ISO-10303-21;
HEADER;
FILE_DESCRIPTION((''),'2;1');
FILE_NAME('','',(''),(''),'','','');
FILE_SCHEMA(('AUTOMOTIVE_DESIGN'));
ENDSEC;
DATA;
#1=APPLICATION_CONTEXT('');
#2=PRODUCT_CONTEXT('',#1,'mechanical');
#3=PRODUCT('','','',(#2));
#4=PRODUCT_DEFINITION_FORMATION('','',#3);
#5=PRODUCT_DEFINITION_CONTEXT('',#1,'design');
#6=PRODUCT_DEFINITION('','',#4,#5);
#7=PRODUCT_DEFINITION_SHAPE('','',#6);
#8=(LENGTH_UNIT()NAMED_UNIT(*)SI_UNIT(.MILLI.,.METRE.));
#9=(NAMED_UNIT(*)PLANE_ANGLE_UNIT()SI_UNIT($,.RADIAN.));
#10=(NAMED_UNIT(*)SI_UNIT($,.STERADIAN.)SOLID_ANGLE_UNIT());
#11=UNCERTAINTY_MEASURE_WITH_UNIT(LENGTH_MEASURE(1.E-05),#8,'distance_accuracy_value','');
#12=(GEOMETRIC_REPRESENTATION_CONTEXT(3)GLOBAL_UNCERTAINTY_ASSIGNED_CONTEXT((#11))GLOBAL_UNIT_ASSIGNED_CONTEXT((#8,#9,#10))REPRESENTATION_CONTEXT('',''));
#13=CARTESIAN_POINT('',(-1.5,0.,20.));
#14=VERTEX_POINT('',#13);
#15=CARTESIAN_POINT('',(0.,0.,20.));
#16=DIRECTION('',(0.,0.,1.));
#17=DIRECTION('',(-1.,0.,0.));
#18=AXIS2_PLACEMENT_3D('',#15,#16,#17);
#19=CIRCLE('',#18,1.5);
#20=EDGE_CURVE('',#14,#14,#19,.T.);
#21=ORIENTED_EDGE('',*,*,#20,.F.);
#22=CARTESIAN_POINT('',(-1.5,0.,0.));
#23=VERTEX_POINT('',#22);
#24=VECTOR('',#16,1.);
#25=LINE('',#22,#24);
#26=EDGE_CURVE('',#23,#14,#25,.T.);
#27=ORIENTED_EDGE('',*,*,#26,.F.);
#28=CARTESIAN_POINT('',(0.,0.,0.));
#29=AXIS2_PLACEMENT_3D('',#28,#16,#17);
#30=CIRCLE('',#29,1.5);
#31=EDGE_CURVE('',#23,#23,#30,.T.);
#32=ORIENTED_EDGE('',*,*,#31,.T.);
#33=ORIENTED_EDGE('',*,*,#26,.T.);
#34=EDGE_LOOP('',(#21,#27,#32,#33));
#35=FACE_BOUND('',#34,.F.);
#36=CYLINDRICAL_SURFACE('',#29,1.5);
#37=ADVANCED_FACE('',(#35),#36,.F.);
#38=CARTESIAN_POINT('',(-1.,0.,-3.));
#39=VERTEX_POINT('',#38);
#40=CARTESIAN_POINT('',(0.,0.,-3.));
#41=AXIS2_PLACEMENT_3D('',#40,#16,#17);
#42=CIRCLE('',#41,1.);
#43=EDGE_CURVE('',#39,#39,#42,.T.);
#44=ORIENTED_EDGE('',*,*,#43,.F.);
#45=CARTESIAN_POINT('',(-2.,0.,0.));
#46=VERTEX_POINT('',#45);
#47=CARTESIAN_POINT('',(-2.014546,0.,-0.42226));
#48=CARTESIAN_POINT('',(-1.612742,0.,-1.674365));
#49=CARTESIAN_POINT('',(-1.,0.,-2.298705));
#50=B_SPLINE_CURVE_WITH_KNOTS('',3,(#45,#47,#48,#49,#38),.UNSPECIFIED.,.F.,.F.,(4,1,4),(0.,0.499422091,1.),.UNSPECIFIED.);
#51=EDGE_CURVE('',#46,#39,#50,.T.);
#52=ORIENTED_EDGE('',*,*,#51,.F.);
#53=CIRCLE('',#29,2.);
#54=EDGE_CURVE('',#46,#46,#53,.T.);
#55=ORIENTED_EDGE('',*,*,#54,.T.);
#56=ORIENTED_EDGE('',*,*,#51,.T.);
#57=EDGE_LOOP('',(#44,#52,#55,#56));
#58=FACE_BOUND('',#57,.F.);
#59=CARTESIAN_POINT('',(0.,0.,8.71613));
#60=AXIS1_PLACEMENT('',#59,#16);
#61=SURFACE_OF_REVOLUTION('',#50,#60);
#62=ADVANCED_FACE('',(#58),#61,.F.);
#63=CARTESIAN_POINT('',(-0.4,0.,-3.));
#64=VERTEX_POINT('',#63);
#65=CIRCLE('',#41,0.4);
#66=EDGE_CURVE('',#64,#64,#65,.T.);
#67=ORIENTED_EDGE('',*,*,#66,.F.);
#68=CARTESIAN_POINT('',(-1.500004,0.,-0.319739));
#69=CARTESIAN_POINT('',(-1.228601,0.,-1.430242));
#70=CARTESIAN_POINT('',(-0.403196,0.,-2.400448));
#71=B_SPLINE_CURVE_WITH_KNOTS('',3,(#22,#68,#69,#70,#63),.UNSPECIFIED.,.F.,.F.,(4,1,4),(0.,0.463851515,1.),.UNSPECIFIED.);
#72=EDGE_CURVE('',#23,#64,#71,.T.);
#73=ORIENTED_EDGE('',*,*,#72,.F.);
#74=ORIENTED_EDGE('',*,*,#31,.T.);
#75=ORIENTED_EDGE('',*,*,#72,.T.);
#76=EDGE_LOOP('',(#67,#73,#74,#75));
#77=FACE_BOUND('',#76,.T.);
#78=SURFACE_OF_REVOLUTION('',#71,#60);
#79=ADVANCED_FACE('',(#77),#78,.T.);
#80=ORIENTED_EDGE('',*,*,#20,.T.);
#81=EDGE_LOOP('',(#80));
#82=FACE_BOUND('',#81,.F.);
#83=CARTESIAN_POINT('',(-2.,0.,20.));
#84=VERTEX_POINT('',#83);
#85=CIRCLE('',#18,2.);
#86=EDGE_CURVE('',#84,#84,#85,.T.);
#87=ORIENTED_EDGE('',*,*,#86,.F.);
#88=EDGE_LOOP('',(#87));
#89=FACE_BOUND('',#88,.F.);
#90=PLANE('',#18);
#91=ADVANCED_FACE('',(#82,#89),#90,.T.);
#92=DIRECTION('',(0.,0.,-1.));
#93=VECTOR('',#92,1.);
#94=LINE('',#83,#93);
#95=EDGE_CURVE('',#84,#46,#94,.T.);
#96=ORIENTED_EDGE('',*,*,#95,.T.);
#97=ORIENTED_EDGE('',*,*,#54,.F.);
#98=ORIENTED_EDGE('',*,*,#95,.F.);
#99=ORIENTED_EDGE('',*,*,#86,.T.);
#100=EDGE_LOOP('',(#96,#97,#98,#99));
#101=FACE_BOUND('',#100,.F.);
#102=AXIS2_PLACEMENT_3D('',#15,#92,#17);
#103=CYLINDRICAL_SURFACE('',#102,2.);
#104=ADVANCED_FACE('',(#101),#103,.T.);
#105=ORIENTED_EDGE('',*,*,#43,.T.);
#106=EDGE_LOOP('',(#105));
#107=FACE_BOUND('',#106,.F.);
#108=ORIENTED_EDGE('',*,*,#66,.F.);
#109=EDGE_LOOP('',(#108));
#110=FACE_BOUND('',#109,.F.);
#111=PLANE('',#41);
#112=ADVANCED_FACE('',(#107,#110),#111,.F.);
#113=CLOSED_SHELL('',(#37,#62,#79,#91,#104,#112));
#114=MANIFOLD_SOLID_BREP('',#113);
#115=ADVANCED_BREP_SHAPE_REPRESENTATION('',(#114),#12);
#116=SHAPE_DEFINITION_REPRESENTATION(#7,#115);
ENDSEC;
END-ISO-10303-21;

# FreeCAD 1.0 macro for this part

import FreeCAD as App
import Part
import Sketcher

V = App.Vector
Q = App.Units.Quantity

doc = App.newDocument("Part")
body = doc.addObject("PartDesign::Body", "Body")

# Sketch on XZ plane
sketch1 = body.newObject("Sketcher::SketchObject", "Sketch")
sketch1.AttachmentSupport = (doc.getObject("XZ_Plane"), [""])
sketch1.MapMode = "FlatFace"
sketch1.addGeometry([
    Part.LineSegment(V(-1.5, 0, 0), V(-1.5, 20, 0)),  # 0
    Part.LineSegment(V(-1.5, 20, 0), V(-2, 20, 0)),  # 1
    Part.LineSegment(V(-2, 20, 0), V(-2, 0, 0)),  # 2
    Part.BSplineCurve([V(-2, 0, 0), V(-2.014546, -0.42226, 0), V(-1.612742, -1.674365, 0), V(-1, -2.298705, 0), V(-1, -3, 0)], [4, 1, 4], [0, 0.499422091, 1], False, 3, [1, 1, 1, 1, 1], False),  # 3
    Part.LineSegment(V(-1, -3, 0), V(-0.4, -3, 0)),  # 4
    Part.BSplineCurve([V(-1.5, 0, 0), V(-1.500004, -0.319739, 0), V(-1.228601, -1.430242, 0), V(-0.403196, -2.400448, 0), V(-0.4, -3, 0)], [4, 1, 4], [0, 0.463851515, 1], False, 3, [1, 1, 1, 1, 1], False),  # 5
], False)
sketch1.addConstraint([
    Sketcher.Constraint("Block", 3),
    Sketcher.Constraint("Block", 5),
    Sketcher.Constraint("Coincident", 0, 2, 1, 1),
    Sketcher.Constraint("Coincident", 1, 2, 2, 1),
    Sketcher.Constraint("Coincident", 2, 2, 3, 1),
    Sketcher.Constraint("Coincident", 3, 2, 4, 1),
    Sketcher.Constraint("Coincident", 4, 2, 5, 2),
    Sketcher.Constraint("Coincident", 5, 1, 0, 1),
    Sketcher.Constraint("Vertical", 0),
    Sketcher.Constraint("Horizontal", 1),
    Sketcher.Constraint("Vertical", 2),
    Sketcher.Constraint("DistanceY", 0, 1, 0, 2, Q("20 mm")),
])
revolution = body.newObject("PartDesign::Revolution", "Revolution")
revolution.Profile = sketch1
revolution.ReferenceAxis = (sketch1, ["V_Axis"])
revolution.Angle = 360

doc.recompute()
